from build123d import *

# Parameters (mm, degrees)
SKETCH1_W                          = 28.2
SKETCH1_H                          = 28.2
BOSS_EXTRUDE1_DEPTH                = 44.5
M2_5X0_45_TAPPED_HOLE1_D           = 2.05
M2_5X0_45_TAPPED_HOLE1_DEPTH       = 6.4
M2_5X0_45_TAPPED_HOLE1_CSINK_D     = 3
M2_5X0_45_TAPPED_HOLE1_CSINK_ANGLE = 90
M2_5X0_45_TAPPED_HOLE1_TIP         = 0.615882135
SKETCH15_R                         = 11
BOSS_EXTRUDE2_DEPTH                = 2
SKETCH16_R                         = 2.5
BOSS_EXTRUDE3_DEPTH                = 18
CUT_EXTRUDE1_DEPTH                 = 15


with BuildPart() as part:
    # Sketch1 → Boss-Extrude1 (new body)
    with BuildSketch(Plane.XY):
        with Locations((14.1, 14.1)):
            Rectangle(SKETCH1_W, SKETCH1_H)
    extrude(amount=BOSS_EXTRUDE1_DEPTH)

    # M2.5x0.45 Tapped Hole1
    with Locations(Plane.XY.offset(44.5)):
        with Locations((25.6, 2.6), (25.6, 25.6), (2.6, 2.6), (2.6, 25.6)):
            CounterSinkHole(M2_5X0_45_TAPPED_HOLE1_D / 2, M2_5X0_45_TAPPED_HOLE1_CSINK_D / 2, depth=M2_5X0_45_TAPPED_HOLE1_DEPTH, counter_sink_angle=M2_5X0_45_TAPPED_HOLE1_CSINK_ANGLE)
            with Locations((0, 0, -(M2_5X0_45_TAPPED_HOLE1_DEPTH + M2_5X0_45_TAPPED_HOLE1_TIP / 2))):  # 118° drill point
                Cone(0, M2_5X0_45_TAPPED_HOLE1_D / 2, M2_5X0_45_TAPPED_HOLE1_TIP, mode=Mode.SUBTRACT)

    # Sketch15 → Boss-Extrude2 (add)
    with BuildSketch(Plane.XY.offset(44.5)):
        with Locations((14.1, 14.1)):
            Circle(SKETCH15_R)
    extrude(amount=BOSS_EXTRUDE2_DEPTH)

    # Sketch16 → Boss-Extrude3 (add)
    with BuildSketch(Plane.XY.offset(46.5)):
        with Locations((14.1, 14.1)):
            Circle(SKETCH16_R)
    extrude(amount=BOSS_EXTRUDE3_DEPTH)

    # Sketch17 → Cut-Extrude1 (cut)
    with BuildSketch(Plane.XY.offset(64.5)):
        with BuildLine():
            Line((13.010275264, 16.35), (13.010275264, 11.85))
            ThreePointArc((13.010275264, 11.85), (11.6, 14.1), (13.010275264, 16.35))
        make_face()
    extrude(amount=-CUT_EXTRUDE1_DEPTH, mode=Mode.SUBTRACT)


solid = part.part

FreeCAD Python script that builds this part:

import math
import FreeCAD as App
import Part
import Sketcher
Q = App.Units.Quantity


def add_polygon(sketch, points):
    """Adds a closed chain of lines whose ends are joined by coincident constraints."""
    first, n = sketch.GeometryCount, len(points)
    for a, b in zip(points, points[1:] + points[:1]):
        sketch.addGeometry(Part.LineSegment(App.Vector(*a, 0), App.Vector(*b, 0)), False)
    for i in range(n):
        sketch.addConstraint(Sketcher.Constraint("Coincident", first + i, 2, first + (i + 1) % n, 1))

doc = App.newDocument("Part")
body = doc.addObject("PartDesign::Body", "Body")

# Sketch on XY plane
sketch1 = body.newObject("Sketcher::SketchObject", "Sketch")
sketch1.AttachmentSupport = (doc.getObject("XY_Plane"), [""])
sketch1.MapMode = "FlatFace"
add_polygon(sketch1, [(0, 28), (0, 0), (28, 0), (28, 28)])  # lines 0-3
sketch1.addConstraint([
    Sketcher.Constraint("Vertical", 0),
    Sketcher.Constraint("Horizontal", 1),
    Sketcher.Constraint("Vertical", 2),
    Sketcher.Constraint("Horizontal", 3),
    Sketcher.Constraint("Coincident", 0, 2, -1, 1),
    Sketcher.Constraint("Equal", 3, 0),
    Sketcher.Constraint("DistanceX", 1, 1, 1, 2, Q("28.2 mm")),
])
pad1 = body.newObject("PartDesign::Pad", "Pad")
pad1.Profile = sketch1
pad1.Length = 44.5

# Sketch on XY plane
sketch2 = body.newObject("Sketcher::SketchObject", "Sketch001")
sketch2.AttachmentSupport = (doc.getObject("XY_Plane"), [""])
sketch2.MapMode = "FlatFace"
sketch2.AttachmentOffset = App.Placement(App.Vector(0, 0, 44.5), App.Rotation())
sketch2.addGeometry([
    Part.Circle(App.Vector(25.6, 2.6, 0), App.Vector(0, 0, 1), 1),
    Part.Circle(App.Vector(25.6, 25.6, 0), App.Vector(0, 0, 1), 1),
    Part.Circle(App.Vector(2.6, 2.6, 0), App.Vector(0, 0, 1), 1),
    Part.Circle(App.Vector(2.6, 25.6, 0), App.Vector(0, 0, 1), 1),
], False)
sketch2.addConstraint([
    Sketcher.Constraint("Equal", 0, 1),
    Sketcher.Constraint("Equal", 1, 2),
    Sketcher.Constraint("Equal", 2, 3),
    Sketcher.Constraint("Horizontal", 0, 3, 2, 3),
    Sketcher.Constraint("Horizontal", 1, 3, 3, 3),
    Sketcher.Constraint("Vertical", 0, 3, 1, 3),
    Sketcher.Constraint("Vertical", 2, 3, 3, 3),
    Sketcher.Constraint("Diameter", 0, Q("2.05 mm")),
    Sketcher.Constraint("DistanceY", 0, 3, 1, 3, Q("23 mm")),
    Sketcher.Constraint("DistanceX", 2, 3, 0, 3, Q("23 mm")),
    Sketcher.Constraint("DistanceX", -1, 1, 0, 3, Q("25.6 mm")),
    Sketcher.Constraint("DistanceY", -1, 1, 0, 3, Q("2.6 mm")),
])
doc.recompute()
hole = body.newObject("PartDesign::Hole", "Hole")
hole.Profile = sketch2
hole.ThreadType = "None"
hole.Diameter = 2.05
hole.DepthType = "Dimension"
hole.Depth = 6.4
hole.DrillPoint = "Angled"
hole.DrillPointAngle = 118
hole.HoleCutType = "Countersink"
hole.HoleCutDiameter = 3
hole.HoleCutCountersinkAngle = 90

# Sketch on XY plane
sketch3 = body.newObject("Sketcher::SketchObject", "Sketch002")
sketch3.AttachmentSupport = (doc.getObject("XY_Plane"), [""])
sketch3.MapMode = "FlatFace"
sketch3.AttachmentOffset = App.Placement(App.Vector(0, 0, 44.5), App.Rotation())
sketch3.addGeometry(Part.Circle(App.Vector(14, 14, 0), App.Vector(0, 0, 1), 11), False)
sketch3.addConstraint([
    Sketcher.Constraint("Diameter", 0, Q("22 mm")),
    Sketcher.Constraint("DistanceX", -1, 1, 0, 3, Q("14.1 mm")),
    Sketcher.Constraint("DistanceY", -1, 1, 0, 3, Q("14.1 mm")),
])
pad2 = body.newObject("PartDesign::Pad", "Pad001")
pad2.Profile = sketch3
pad2.Length = 2

# Sketch on XY plane
sketch4 = body.newObject("Sketcher::SketchObject", "Sketch003")
sketch4.AttachmentSupport = (doc.getObject("XY_Plane"), [""])
sketch4.MapMode = "FlatFace"
sketch4.AttachmentOffset = App.Placement(App.Vector(0, 0, 46.5), App.Rotation())
sketch4.addGeometry(Part.Circle(App.Vector(14.1, 14.1, 0), App.Vector(0, 0, 1), 2.5), False)
sketch4.addConstraint([
    Sketcher.Constraint("Diameter", 0, Q("5 mm")),
    Sketcher.Constraint("DistanceX", -1, 1, 0, 3, Q("14.1 mm")),
    Sketcher.Constraint("DistanceY", -1, 1, 0, 3, Q("14.1 mm")),
])
pad3 = body.newObject("PartDesign::Pad", "Pad002")
pad3.Profile = sketch4
pad3.Length = 18

# Sketch on XY plane
sketch5 = body.newObject("Sketcher::SketchObject", "Sketch004")
sketch5.AttachmentSupport = (doc.getObject("XY_Plane"), [""])
sketch5.MapMode = "FlatFace"
sketch5.AttachmentOffset = App.Placement(App.Vector(0, 0, 64.5), App.Rotation())
sketch5.addGeometry([
    Part.LineSegment(App.Vector(13, 11.8, 0), App.Vector(13, 16.4, 0)),
    Part.ArcOfCircle(Part.Circle(App.Vector(14.1, 14.1, 0), App.Vector(0, 0, 1), 2.5), math.radians(116), math.radians(244)),
], False)
sketch5.addConstraint([
    Sketcher.Constraint("Coincident", 0, 1, 1, 2),
    Sketcher.Constraint("Coincident", 1, 1, 0, 2),
    Sketcher.Constraint("Vertical", 0),
    Sketcher.Constraint("Radius", 1, Q("2.5 mm")),
    Sketcher.Constraint("DistanceY", 0, 1, 0, 2, Q("4.5 mm")),
    Sketcher.Constraint("DistanceX", -1, 1, 1, 3, Q("14.1 mm")),
    Sketcher.Constraint("DistanceY", -1, 1, 1, 3, Q("14.1 mm")),
])
pocket1 = body.newObject("PartDesign::Pocket", "Pocket")
pocket1.Profile = sketch5
pocket1.Length = 15

doc.recompute()
